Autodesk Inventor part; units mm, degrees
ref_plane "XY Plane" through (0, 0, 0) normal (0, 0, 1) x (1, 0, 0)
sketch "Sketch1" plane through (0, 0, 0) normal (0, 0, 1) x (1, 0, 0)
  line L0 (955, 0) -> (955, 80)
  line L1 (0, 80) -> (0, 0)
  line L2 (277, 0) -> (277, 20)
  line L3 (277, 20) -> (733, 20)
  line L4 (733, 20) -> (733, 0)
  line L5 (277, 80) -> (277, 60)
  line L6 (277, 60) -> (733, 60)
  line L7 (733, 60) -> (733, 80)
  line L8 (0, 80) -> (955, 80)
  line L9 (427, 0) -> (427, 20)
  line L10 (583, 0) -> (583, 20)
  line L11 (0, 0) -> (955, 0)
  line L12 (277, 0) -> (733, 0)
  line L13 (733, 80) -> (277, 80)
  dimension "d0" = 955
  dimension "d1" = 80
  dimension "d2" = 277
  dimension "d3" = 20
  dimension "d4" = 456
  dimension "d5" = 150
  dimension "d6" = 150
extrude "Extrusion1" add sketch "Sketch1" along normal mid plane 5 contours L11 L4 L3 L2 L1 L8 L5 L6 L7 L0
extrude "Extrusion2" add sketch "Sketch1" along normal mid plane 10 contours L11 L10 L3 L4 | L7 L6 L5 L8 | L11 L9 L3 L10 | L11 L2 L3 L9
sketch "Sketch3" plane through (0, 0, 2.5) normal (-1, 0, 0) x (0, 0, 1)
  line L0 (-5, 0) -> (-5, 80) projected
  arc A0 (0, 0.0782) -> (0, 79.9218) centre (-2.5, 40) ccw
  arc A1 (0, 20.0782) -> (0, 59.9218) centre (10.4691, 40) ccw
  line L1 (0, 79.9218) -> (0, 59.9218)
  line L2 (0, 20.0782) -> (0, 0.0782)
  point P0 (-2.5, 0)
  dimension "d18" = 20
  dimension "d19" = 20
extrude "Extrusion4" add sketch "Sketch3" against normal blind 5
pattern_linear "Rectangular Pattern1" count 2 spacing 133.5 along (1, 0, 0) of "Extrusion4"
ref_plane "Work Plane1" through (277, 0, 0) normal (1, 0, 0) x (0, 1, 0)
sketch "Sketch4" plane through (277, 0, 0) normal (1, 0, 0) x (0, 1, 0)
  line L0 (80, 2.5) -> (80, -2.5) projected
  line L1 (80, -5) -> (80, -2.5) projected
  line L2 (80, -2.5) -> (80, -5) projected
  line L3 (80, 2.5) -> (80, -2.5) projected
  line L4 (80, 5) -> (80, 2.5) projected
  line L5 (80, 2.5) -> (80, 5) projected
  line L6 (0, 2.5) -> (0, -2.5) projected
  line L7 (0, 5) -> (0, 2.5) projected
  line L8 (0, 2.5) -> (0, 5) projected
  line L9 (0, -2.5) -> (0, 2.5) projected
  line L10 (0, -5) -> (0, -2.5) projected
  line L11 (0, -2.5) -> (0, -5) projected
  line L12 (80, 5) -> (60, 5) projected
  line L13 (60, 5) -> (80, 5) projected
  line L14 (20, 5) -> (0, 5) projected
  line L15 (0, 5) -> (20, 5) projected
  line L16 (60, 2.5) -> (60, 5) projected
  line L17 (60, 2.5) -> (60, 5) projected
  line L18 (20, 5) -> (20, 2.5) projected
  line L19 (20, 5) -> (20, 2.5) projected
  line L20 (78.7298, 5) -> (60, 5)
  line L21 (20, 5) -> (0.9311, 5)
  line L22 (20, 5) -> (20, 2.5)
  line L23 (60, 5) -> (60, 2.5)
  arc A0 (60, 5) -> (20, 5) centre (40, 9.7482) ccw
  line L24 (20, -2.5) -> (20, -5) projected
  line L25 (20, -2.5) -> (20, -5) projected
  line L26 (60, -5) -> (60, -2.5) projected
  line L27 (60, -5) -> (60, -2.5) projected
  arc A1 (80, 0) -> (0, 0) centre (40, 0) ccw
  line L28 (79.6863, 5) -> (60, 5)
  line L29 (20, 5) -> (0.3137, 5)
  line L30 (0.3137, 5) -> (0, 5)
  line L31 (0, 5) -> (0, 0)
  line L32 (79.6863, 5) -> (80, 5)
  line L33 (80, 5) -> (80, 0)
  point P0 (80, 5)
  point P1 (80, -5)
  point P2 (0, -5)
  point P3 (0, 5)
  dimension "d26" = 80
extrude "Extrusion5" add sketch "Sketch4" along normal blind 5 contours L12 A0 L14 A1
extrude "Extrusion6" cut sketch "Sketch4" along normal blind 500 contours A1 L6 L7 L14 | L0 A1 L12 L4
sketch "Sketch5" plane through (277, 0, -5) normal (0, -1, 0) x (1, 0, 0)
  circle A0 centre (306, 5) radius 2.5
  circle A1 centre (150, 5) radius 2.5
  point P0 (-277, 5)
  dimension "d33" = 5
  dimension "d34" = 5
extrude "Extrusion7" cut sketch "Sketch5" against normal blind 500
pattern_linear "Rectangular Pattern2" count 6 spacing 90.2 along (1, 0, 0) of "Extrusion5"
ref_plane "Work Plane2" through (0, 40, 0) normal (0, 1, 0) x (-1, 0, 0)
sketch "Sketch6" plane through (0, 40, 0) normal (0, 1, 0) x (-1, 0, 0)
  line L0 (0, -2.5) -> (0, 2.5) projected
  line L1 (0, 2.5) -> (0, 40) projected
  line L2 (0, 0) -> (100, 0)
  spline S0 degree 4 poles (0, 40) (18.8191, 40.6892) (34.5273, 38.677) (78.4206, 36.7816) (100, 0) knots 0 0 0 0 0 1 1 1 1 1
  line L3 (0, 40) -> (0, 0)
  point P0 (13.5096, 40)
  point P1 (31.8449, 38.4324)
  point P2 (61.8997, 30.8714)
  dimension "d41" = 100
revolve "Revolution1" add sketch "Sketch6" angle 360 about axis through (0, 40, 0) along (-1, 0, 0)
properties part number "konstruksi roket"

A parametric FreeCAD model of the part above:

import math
import FreeCAD as App
import Part
import Sketcher
Q = App.Units.Quantity

doc = App.newDocument("Part")
params = doc.addObject("Spreadsheet::Sheet", "Params")
for row, (alias, value) in enumerate([
    ("sketch1_width", "456 mm"),
    ("sketch1_width2", "277 mm"),
    ("sketch1_height", "80 mm"),
    ("sketch1_height2", "20 mm"),
    ("pad1_length", "5 mm"),
    ("sketch2_width", "456 mm"),
    ("sketch2_height", "20 mm"),
    ("pad2_length", "10 mm"),
    ("sketch3_width", "20 mm"),
    ("sketch3_radius", "40 mm"),
    ("pad3_length", "5 mm"),
    ("linearpattern_pitch", "133.5 mm"),
    ("sketch4_radius", "40 mm"),
    ("pad4_length", "5 mm"),
    ("sketch5_radius", "40 mm"),
    ("sketch5_height", "5 mm"),
    ("pocket1_length", "500 mm"),
    ("sketch6_diameter", "5 mm"),
    ("pocket2_length", "500 mm"),
    ("linearpattern2_pitch", "90.2 mm"),
    ("revolution_angle", "360 deg"),
], start=1):
    params.set(f"A{row}", alias)
    params.set(f"B{row}", "=" + value)
    params.setAlias(f"B{row}", alias)

body = doc.addObject("PartDesign::Body", "Body")

# Sketch on XY plane
sketch1 = doc.addObject("Sketcher::SketchObject", "Sketch")
body.addObject(sketch1)
sketch1.AttachmentSupport = (doc.XY_Plane, [""])
sketch1.MapMode = "FlatFace"
sketch1.addGeometry([
    Part.LineSegment(App.Vector(733, 0, 0), App.Vector(955, 0, 0)),  # 0
    Part.LineSegment(App.Vector(955, 0, 0), App.Vector(955, 80, 0)),  # 1
    Part.LineSegment(App.Vector(955, 80, 0), App.Vector(733, 80, 0)),  # 2
    Part.LineSegment(App.Vector(733, 80, 0), App.Vector(733, 60, 0)),  # 3
    Part.LineSegment(App.Vector(733, 60, 0), App.Vector(277, 60, 0)),  # 4
    Part.LineSegment(App.Vector(277, 60, 0), App.Vector(277, 80, 0)),  # 5
    Part.LineSegment(App.Vector(277, 80, 0), App.Vector(0, 80, 0)),  # 6
    Part.LineSegment(App.Vector(0, 80, 0), App.Vector(0, 0, 0)),  # 7
    Part.LineSegment(App.Vector(0, 0, 0), App.Vector(277, 0, 0)),  # 8
    Part.LineSegment(App.Vector(277, 0, 0), App.Vector(277, 20, 0)),  # 9
    Part.LineSegment(App.Vector(277, 20, 0), App.Vector(733, 20, 0)),  # 10
    Part.LineSegment(App.Vector(733, 20, 0), App.Vector(733, 0, 0)),  # 11
], False)
sketch1.addConstraint([
    Sketcher.Constraint("Coincident", 0, 2, 1, 1),
    Sketcher.Constraint("Coincident", 1, 2, 2, 1),
    Sketcher.Constraint("Coincident", 2, 2, 3, 1),
    Sketcher.Constraint("Coincident", 3, 2, 4, 1),
    Sketcher.Constraint("Coincident", 4, 2, 5, 1),
    Sketcher.Constraint("Coincident", 5, 2, 6, 1),
    Sketcher.Constraint("Coincident", 6, 2, 7, 1),
    Sketcher.Constraint("Coincident", 7, 2, 8, 1),
    Sketcher.Constraint("Coincident", 8, 2, 9, 1),
    Sketcher.Constraint("Coincident", 9, 2, 10, 1),
    Sketcher.Constraint("Coincident", 10, 2, 11, 1),
    Sketcher.Constraint("Coincident", 11, 2, 0, 1),
    Sketcher.Constraint("Horizontal", 0),
    Sketcher.Constraint("Vertical", 1),
    Sketcher.Constraint("Horizontal", 2),
    Sketcher.Constraint("Vertical", 3),
    Sketcher.Constraint("Horizontal", 4),
    Sketcher.Constraint("Vertical", 5),
    Sketcher.Constraint("Horizontal", 6),
    Sketcher.Constraint("Vertical", 7),
    Sketcher.Constraint("Horizontal", 8),
    Sketcher.Constraint("Vertical", 9),
    Sketcher.Constraint("Horizontal", 10),
    Sketcher.Constraint("Vertical", 11),
    Sketcher.Constraint("Coincident", 7, 2, -1, 1),
    Sketcher.Constraint("PointOnObject", 0, 2, -1),
    Sketcher.Constraint("Horizontal", 2, 2, 5, 2),
    Sketcher.Constraint("Vertical", 5, 2, 8, 2),
    Sketcher.Constraint("Vertical", 3, 2, 10, 2),
    Sketcher.Constraint("Equal", 5, 9),
    Sketcher.Constraint("DistanceX", 4, 2, 4, 1, Q("456 mm")),
    Sketcher.Constraint("DistanceX", 6, 2, 6, 1, Q("277 mm")),
    Sketcher.Constraint("DistanceY", 1, 1, 1, 2, Q("80 mm")),
    Sketcher.Constraint("DistanceY", 3, 2, 3, 1, Q("20 mm")),
    Sketcher.Constraint("DistanceX", -1, 1, 0, 2, Q("955 mm")),
])
sketch1.setExpression("Constraints[30]", "Params.sketch1_width")
sketch1.setExpression("Constraints[31]", "Params.sketch1_width2")
sketch1.setExpression("Constraints[32]", "Params.sketch1_height")
sketch1.setExpression("Constraints[33]", "Params.sketch1_height2")
pad1 = doc.addObject("PartDesign::Pad", "Pad")
body.addObject(pad1)
pad1.Profile = sketch1
pad1.setExpression("Length", "Params.pad1_length")
pad1.Midplane = True

# Sketch on XY plane
sketch2 = doc.addObject("Sketcher::SketchObject", "Sketch001")
body.addObject(sketch2)
sketch2.AttachmentSupport = (doc.XY_Plane, [""])
sketch2.MapMode = "FlatFace"
sketch2.addGeometry([
    Part.LineSegment(App.Vector(733, 0, 0), App.Vector(733, 20, 0)),  # 0
    Part.LineSegment(App.Vector(733, 20, 0), App.Vector(277, 20, 0)),  # 1
    Part.LineSegment(App.Vector(277, 20, 0), App.Vector(277, 0, 0)),  # 2
    Part.LineSegment(App.Vector(277, 0, 0), App.Vector(733, 0, 0)),  # 3
    Part.LineSegment(App.Vector(733, 60, 0), App.Vector(733, 80, 0)),  # 4
    Part.LineSegment(App.Vector(733, 80, 0), App.Vector(277, 80, 0)),  # 5
    Part.LineSegment(App.Vector(277, 80, 0), App.Vector(277, 60, 0)),  # 6
    Part.LineSegment(App.Vector(277, 60, 0), App.Vector(733, 60, 0)),  # 7
], False)
sketch2.addConstraint([
    Sketcher.Constraint("Coincident", 0, 2, 1, 1),
    Sketcher.Constraint("Coincident", 1, 2, 2, 1),
    Sketcher.Constraint("Coincident", 2, 2, 3, 1),
    Sketcher.Constraint("Coincident", 3, 2, 0, 1),
    Sketcher.Constraint("Coincident", 4, 2, 5, 1),
    Sketcher.Constraint("Coincident", 5, 2, 6, 1),
    Sketcher.Constraint("Coincident", 6, 2, 7, 1),
    Sketcher.Constraint("Coincident", 7, 2, 4, 1),
    Sketcher.Constraint("Vertical", 0),
    Sketcher.Constraint("Horizontal", 1),
    Sketcher.Constraint("Vertical", 2),
    Sketcher.Constraint("Horizontal", 3),
    Sketcher.Constraint("Vertical", 4),
    Sketcher.Constraint("Horizontal", 5),
    Sketcher.Constraint("Vertical", 6),
    Sketcher.Constraint("Horizontal", 7),
    Sketcher.Constraint("PointOnObject", 2, 2, -1),
    Sketcher.Constraint("Vertical", 3, 2, 4, 2),
    Sketcher.Constraint("Vertical", 2, 2, 5, 2),
    Sketcher.Constraint("Equal", 2, 4),
    Sketcher.Constraint("DistanceX", 1, 2, 1, 1, Q("456 mm")),
    Sketcher.Constraint("DistanceY", 0, 1, 0, 2, Q("20 mm")),
    Sketcher.Constraint("DistanceX", -1, 1, 1, 2, Q("277 mm")),
    Sketcher.Constraint("DistanceY", -1, 1, 4, 2, Q("80 mm")),
])
sketch2.setExpression("Constraints[20]", "Params.sketch2_width")
sketch2.setExpression("Constraints[21]", "Params.sketch2_height")
pad2 = doc.addObject("PartDesign::Pad", "Pad001")
body.addObject(pad2)
pad2.Profile = sketch2
pad2.setExpression("Length", "Params.pad2_length")
pad2.Midplane = True

# Sketch on YZ plane
sketch3 = doc.addObject("Sketcher::SketchObject", "Sketch002")
body.addObject(sketch3)
sketch3.AttachmentSupport = (doc.YZ_Plane, [""])
sketch3.MapMode = "FlatFace"
sketch3.addGeometry([
    Part.LineSegment(App.Vector(20, 2, 0), App.Vector(0, 2, 0)),
    Part.ArcOfCircle(Part.Circle(App.Vector(40, 0, 0), App.Vector(0, 0, 1), 40), math.radians(4), math.radians(176)),
    Part.LineSegment(App.Vector(80, 2, 0), App.Vector(60, 2, 0)),
    Part.ArcOfCircle(Part.Circle(App.Vector(40, 13, 0), App.Vector(0, 0, 1), 23), math.radians(-28), math.radians(208)),
], False)
sketch3.addConstraint([
    Sketcher.Constraint("Coincident", 0, 2, 1, 2),
    Sketcher.Constraint("Coincident", 1, 1, 2, 1),
    Sketcher.Constraint("Coincident", 2, 2, 3, 1),
    Sketcher.Constraint("Coincident", 3, 2, 0, 1),
    Sketcher.Constraint("Horizontal", 0),
    Sketcher.Constraint("Horizontal", 2),
    Sketcher.Constraint("PointOnObject", 1, 3, -1),
    Sketcher.Constraint("Horizontal", 0, 2, 1, 1),
    Sketcher.Constraint("Vertical", 1, 3, 3, 3),
    Sketcher.Constraint("DistanceX", 0, 2, 0, 1, Q("20 mm")),
    Sketcher.Constraint("Radius", 1, Q("40 mm")),
    Sketcher.Constraint("DistanceX", -1, 1, 1, 3, Q("40 mm")),
    Sketcher.Constraint("Radius", 3, Q("22.505 mm")),
    Sketcher.Constraint("DistanceY", -1, 1, 0, 2, Q("2.5 mm")),
])
sketch3.setExpression("Constraints[9]", "Params.sketch3_width")
sketch3.setExpression("Constraints[10]", "Params.sketch3_radius")
pad3 = doc.addObject("PartDesign::Pad", "Pad002")
body.addObject(pad3)
pad3.Profile = sketch3
pad3.setExpression("Length", "Params.pad3_length")
doc.recompute()

linearpattern = doc.addObject("PartDesign::LinearPattern", "LinearPattern")
body.addObject(linearpattern)
linearpattern.Originals = [pad3]
linearpattern.Direction = (doc.X_Axis, [""])
linearpattern.Mode = "offset"
linearpattern.setExpression("Offset", "Params.linearpattern_pitch")
linearpattern.Occurrences = 2
body.Tip = linearpattern

# Sketch on YZ plane
sketch4 = doc.addObject("Sketcher::SketchObject", "Sketch003")
body.addObject(sketch4)
sketch4.AttachmentSupport = (doc.YZ_Plane, [""])
sketch4.MapMode = "FlatFace"
sketch4.AttachmentOffset = App.Placement(App.Vector(0, 0, 277), App.Rotation())
sketch4.addGeometry([
    Part.LineSegment(App.Vector(60, 5, 0), App.Vector(80, 5, 0)),
    Part.ArcOfCircle(Part.Circle(App.Vector(40, 0, 0), App.Vector(0, 0, 1), 40), math.radians(7), math.radians(173)),
    Part.LineSegment(App.Vector(0, 5, 0), App.Vector(20, 5, 0)),
    Part.ArcOfCircle(Part.Circle(App.Vector(40, 10, 0), App.Vector(0, 0, 1), 21), math.radians(-13), math.radians(193)),
], False)
sketch4.addConstraint([
    Sketcher.Constraint("Coincident", 0, 2, 1, 1),
    Sketcher.Constraint("Coincident", 1, 2, 2, 1),
    Sketcher.Constraint("Coincident", 2, 2, 3, 2),
    Sketcher.Constraint("Coincident", 3, 1, 0, 1),
    Sketcher.Constraint("Horizontal", 0),
    Sketcher.Constraint("Horizontal", 2),
    Sketcher.Constraint("PointOnObject", 1, 3, -1),
    Sketcher.Constraint("Horizontal", 0, 2, 1, 2),
    Sketcher.Constraint("Vertical", 1, 3, 3, 3),
    Sketcher.Constraint("Radius", 1, Q("40 mm")),
    Sketcher.Constraint("DistanceX", -1, 1, 1, 3, Q("40 mm")),
    Sketcher.Constraint("DistanceY", -1, 1, 0, 2, Q("5 mm")),
    Sketcher.Constraint("DistanceX", -1, 1, 2, 2, Q("20 mm")),
    Sketcher.Constraint("Radius", 3, Q("20.556 mm")),
])
sketch4.setExpression("Constraints[9]", "Params.sketch4_radius")
pad4 = doc.addObject("PartDesign::Pad", "Pad003")
body.addObject(pad4)
pad4.Profile = sketch4
pad4.setExpression("Length", "Params.pad4_length")

# Sketch on YZ plane
sketch5 = doc.addObject("Sketcher::SketchObject", "Sketch004")
body.addObject(sketch5)
sketch5.AttachmentSupport = (doc.YZ_Plane, [""])
sketch5.MapMode = "FlatFace"
sketch5.AttachmentOffset = App.Placement(App.Vector(0, 0, 277), App.Rotation())
sketch5.addGeometry([
    Part.ArcOfCircle(Part.Circle(App.Vector(40, 0, 0), App.Vector(0, 0, 1), 40), math.radians(172.82), math.radians(180)),  # 0
    Part.LineSegment(App.Vector(0.31, 5, 0), App.Vector(0, 5, 0)),  # 1
    Part.LineSegment(App.Vector(0, 5, 0), App.Vector(0, 0, 0)),  # 2
    Part.LineSegment(App.Vector(80, 0, 0), App.Vector(80, 5, 0)),  # 3
    Part.LineSegment(App.Vector(80, 5, 0), App.Vector(79.69, 5, 0)),  # 4
    Part.ArcOfCircle(Part.Circle(App.Vector(40, 0, 0), App.Vector(0, 0, 1), 40), math.radians(0), math.radians(7.18)),  # 5
], False)
sketch5.addConstraint([
    Sketcher.Constraint("Coincident", 0, 1, 1, 1),
    Sketcher.Constraint("Coincident", 1, 2, 2, 1),
    Sketcher.Constraint("Tangent", 2, 2, 0, 2),
    Sketcher.Constraint("Coincident", 3, 2, 4, 1),
    Sketcher.Constraint("Coincident", 4, 2, 5, 2),
    Sketcher.Constraint("Tangent", 5, 1, 3, 1),
    Sketcher.Constraint("Horizontal", 1),
    Sketcher.Constraint("Vertical", 2),
    Sketcher.Constraint("Vertical", 3),
    Sketcher.Constraint("Horizontal", 4),
    Sketcher.Constraint("Coincident", 2, 2, -1, 1),
    Sketcher.Constraint("Coincident", 5, 3, 0, 3),
    Sketcher.Constraint("Equal", 0, 5),
    Sketcher.Constraint("Horizontal", 1, 2, 3, 2),
    Sketcher.Constraint("Radius", 0, Q("40 mm")),
    Sketcher.Constraint("DistanceY", 2, 2, 2, 1, Q("5 mm")),
])
sketch5.setExpression("Constraints[14]", "Params.sketch5_radius")
sketch5.setExpression("Constraints[15]", "Params.sketch5_height")
pocket1 = doc.addObject("PartDesign::Pocket", "Pocket")
body.addObject(pocket1)
pocket1.Profile = sketch5
pocket1.setExpression("Length", "Params.pocket1_length")
pocket1.Reversed = True

# Sketch on XZ plane
sketch6 = doc.addObject("Sketcher::SketchObject", "Sketch005")
body.addObject(sketch6)
sketch6.AttachmentSupport = (doc.XZ_Plane, [""])
sketch6.MapMode = "FlatFace"
sketch6.addGeometry([
    Part.Circle(App.Vector(583, 0, 0), App.Vector(0, 0, 1), 2.5),
    Part.Circle(App.Vector(427, 0, 0), App.Vector(0, 0, 1), 2.5),
], False)
sketch6.addConstraint([
    Sketcher.Constraint("Equal", 0, 1),
    Sketcher.Constraint("PointOnObject", 0, 3, -1),
    Sketcher.Constraint("PointOnObject", 1, 3, -1),
    Sketcher.Constraint("Diameter", 0, Q("5 mm")),
    Sketcher.Constraint("DistanceX", -1, 1, 0, 3, Q("583 mm")),
    Sketcher.Constraint("DistanceX", -1, 1, 1, 3, Q("427 mm")),
])
sketch6.setExpression("Constraints[3]", "Params.sketch6_diameter")
pocket2 = doc.addObject("PartDesign::Pocket", "Pocket001")
body.addObject(pocket2)
pocket2.Profile = sketch6
pocket2.setExpression("Length", "Params.pocket2_length")
doc.recompute()

linearpattern2 = doc.addObject("PartDesign::LinearPattern", "LinearPattern001")
body.addObject(linearpattern2)
linearpattern2.Originals = [pad4]
linearpattern2.Direction = (doc.X_Axis, [""])
linearpattern2.Mode = "offset"
linearpattern2.setExpression("Offset", "Params.linearpattern2_pitch")
linearpattern2.Occurrences = 6
body.Tip = linearpattern2

# Sketch on XZ plane
sketch7 = doc.addObject("Sketcher::SketchObject", "Sketch006")
body.addObject(sketch7)
sketch7.AttachmentSupport = (doc.XZ_Plane, [""])
sketch7.MapMode = "FlatFace"
sketch7.AttachmentOffset = App.Placement(App.Vector(0, 0, -40), App.Rotation())
sketch7.addGeometry([
    Part.LineSegment(App.Vector(0, 40, 0), App.Vector(0, 0, 0)),
    Part.LineSegment(App.Vector(0, 0, 0), App.Vector(-100, 0, 0)),
    Part.BSplineCurve([App.Vector(0, 40, 0), App.Vector(-18.8191, 40.6892, 0), App.Vector(-34.5273, 38.677, 0), App.Vector(-78.4206, 36.7816, 0), App.Vector(-100, 0, 0)], [5, 5], [0, 1], False, 4, [1, 1, 1, 1, 1], False),
], False)
sketch7.addConstraint([
    Sketcher.Constraint("Block", 2),
    Sketcher.Constraint("Coincident", 0, 2, 1, 1),
    Sketcher.Constraint("Coincident", 1, 2, 2, 2),
    Sketcher.Constraint("Coincident", 2, 1, 0, 1),
    Sketcher.Constraint("Vertical", 0),
    Sketcher.Constraint("Horizontal", 1),
])
revolution = doc.addObject("PartDesign::Revolution", "Revolution")
body.addObject(revolution)
revolution.Profile = sketch7
revolution.ReferenceAxis = (sketch7, ["H_Axis"])
revolution.setExpression("Angle", "Params.revolution_angle")

doc.recompute()
